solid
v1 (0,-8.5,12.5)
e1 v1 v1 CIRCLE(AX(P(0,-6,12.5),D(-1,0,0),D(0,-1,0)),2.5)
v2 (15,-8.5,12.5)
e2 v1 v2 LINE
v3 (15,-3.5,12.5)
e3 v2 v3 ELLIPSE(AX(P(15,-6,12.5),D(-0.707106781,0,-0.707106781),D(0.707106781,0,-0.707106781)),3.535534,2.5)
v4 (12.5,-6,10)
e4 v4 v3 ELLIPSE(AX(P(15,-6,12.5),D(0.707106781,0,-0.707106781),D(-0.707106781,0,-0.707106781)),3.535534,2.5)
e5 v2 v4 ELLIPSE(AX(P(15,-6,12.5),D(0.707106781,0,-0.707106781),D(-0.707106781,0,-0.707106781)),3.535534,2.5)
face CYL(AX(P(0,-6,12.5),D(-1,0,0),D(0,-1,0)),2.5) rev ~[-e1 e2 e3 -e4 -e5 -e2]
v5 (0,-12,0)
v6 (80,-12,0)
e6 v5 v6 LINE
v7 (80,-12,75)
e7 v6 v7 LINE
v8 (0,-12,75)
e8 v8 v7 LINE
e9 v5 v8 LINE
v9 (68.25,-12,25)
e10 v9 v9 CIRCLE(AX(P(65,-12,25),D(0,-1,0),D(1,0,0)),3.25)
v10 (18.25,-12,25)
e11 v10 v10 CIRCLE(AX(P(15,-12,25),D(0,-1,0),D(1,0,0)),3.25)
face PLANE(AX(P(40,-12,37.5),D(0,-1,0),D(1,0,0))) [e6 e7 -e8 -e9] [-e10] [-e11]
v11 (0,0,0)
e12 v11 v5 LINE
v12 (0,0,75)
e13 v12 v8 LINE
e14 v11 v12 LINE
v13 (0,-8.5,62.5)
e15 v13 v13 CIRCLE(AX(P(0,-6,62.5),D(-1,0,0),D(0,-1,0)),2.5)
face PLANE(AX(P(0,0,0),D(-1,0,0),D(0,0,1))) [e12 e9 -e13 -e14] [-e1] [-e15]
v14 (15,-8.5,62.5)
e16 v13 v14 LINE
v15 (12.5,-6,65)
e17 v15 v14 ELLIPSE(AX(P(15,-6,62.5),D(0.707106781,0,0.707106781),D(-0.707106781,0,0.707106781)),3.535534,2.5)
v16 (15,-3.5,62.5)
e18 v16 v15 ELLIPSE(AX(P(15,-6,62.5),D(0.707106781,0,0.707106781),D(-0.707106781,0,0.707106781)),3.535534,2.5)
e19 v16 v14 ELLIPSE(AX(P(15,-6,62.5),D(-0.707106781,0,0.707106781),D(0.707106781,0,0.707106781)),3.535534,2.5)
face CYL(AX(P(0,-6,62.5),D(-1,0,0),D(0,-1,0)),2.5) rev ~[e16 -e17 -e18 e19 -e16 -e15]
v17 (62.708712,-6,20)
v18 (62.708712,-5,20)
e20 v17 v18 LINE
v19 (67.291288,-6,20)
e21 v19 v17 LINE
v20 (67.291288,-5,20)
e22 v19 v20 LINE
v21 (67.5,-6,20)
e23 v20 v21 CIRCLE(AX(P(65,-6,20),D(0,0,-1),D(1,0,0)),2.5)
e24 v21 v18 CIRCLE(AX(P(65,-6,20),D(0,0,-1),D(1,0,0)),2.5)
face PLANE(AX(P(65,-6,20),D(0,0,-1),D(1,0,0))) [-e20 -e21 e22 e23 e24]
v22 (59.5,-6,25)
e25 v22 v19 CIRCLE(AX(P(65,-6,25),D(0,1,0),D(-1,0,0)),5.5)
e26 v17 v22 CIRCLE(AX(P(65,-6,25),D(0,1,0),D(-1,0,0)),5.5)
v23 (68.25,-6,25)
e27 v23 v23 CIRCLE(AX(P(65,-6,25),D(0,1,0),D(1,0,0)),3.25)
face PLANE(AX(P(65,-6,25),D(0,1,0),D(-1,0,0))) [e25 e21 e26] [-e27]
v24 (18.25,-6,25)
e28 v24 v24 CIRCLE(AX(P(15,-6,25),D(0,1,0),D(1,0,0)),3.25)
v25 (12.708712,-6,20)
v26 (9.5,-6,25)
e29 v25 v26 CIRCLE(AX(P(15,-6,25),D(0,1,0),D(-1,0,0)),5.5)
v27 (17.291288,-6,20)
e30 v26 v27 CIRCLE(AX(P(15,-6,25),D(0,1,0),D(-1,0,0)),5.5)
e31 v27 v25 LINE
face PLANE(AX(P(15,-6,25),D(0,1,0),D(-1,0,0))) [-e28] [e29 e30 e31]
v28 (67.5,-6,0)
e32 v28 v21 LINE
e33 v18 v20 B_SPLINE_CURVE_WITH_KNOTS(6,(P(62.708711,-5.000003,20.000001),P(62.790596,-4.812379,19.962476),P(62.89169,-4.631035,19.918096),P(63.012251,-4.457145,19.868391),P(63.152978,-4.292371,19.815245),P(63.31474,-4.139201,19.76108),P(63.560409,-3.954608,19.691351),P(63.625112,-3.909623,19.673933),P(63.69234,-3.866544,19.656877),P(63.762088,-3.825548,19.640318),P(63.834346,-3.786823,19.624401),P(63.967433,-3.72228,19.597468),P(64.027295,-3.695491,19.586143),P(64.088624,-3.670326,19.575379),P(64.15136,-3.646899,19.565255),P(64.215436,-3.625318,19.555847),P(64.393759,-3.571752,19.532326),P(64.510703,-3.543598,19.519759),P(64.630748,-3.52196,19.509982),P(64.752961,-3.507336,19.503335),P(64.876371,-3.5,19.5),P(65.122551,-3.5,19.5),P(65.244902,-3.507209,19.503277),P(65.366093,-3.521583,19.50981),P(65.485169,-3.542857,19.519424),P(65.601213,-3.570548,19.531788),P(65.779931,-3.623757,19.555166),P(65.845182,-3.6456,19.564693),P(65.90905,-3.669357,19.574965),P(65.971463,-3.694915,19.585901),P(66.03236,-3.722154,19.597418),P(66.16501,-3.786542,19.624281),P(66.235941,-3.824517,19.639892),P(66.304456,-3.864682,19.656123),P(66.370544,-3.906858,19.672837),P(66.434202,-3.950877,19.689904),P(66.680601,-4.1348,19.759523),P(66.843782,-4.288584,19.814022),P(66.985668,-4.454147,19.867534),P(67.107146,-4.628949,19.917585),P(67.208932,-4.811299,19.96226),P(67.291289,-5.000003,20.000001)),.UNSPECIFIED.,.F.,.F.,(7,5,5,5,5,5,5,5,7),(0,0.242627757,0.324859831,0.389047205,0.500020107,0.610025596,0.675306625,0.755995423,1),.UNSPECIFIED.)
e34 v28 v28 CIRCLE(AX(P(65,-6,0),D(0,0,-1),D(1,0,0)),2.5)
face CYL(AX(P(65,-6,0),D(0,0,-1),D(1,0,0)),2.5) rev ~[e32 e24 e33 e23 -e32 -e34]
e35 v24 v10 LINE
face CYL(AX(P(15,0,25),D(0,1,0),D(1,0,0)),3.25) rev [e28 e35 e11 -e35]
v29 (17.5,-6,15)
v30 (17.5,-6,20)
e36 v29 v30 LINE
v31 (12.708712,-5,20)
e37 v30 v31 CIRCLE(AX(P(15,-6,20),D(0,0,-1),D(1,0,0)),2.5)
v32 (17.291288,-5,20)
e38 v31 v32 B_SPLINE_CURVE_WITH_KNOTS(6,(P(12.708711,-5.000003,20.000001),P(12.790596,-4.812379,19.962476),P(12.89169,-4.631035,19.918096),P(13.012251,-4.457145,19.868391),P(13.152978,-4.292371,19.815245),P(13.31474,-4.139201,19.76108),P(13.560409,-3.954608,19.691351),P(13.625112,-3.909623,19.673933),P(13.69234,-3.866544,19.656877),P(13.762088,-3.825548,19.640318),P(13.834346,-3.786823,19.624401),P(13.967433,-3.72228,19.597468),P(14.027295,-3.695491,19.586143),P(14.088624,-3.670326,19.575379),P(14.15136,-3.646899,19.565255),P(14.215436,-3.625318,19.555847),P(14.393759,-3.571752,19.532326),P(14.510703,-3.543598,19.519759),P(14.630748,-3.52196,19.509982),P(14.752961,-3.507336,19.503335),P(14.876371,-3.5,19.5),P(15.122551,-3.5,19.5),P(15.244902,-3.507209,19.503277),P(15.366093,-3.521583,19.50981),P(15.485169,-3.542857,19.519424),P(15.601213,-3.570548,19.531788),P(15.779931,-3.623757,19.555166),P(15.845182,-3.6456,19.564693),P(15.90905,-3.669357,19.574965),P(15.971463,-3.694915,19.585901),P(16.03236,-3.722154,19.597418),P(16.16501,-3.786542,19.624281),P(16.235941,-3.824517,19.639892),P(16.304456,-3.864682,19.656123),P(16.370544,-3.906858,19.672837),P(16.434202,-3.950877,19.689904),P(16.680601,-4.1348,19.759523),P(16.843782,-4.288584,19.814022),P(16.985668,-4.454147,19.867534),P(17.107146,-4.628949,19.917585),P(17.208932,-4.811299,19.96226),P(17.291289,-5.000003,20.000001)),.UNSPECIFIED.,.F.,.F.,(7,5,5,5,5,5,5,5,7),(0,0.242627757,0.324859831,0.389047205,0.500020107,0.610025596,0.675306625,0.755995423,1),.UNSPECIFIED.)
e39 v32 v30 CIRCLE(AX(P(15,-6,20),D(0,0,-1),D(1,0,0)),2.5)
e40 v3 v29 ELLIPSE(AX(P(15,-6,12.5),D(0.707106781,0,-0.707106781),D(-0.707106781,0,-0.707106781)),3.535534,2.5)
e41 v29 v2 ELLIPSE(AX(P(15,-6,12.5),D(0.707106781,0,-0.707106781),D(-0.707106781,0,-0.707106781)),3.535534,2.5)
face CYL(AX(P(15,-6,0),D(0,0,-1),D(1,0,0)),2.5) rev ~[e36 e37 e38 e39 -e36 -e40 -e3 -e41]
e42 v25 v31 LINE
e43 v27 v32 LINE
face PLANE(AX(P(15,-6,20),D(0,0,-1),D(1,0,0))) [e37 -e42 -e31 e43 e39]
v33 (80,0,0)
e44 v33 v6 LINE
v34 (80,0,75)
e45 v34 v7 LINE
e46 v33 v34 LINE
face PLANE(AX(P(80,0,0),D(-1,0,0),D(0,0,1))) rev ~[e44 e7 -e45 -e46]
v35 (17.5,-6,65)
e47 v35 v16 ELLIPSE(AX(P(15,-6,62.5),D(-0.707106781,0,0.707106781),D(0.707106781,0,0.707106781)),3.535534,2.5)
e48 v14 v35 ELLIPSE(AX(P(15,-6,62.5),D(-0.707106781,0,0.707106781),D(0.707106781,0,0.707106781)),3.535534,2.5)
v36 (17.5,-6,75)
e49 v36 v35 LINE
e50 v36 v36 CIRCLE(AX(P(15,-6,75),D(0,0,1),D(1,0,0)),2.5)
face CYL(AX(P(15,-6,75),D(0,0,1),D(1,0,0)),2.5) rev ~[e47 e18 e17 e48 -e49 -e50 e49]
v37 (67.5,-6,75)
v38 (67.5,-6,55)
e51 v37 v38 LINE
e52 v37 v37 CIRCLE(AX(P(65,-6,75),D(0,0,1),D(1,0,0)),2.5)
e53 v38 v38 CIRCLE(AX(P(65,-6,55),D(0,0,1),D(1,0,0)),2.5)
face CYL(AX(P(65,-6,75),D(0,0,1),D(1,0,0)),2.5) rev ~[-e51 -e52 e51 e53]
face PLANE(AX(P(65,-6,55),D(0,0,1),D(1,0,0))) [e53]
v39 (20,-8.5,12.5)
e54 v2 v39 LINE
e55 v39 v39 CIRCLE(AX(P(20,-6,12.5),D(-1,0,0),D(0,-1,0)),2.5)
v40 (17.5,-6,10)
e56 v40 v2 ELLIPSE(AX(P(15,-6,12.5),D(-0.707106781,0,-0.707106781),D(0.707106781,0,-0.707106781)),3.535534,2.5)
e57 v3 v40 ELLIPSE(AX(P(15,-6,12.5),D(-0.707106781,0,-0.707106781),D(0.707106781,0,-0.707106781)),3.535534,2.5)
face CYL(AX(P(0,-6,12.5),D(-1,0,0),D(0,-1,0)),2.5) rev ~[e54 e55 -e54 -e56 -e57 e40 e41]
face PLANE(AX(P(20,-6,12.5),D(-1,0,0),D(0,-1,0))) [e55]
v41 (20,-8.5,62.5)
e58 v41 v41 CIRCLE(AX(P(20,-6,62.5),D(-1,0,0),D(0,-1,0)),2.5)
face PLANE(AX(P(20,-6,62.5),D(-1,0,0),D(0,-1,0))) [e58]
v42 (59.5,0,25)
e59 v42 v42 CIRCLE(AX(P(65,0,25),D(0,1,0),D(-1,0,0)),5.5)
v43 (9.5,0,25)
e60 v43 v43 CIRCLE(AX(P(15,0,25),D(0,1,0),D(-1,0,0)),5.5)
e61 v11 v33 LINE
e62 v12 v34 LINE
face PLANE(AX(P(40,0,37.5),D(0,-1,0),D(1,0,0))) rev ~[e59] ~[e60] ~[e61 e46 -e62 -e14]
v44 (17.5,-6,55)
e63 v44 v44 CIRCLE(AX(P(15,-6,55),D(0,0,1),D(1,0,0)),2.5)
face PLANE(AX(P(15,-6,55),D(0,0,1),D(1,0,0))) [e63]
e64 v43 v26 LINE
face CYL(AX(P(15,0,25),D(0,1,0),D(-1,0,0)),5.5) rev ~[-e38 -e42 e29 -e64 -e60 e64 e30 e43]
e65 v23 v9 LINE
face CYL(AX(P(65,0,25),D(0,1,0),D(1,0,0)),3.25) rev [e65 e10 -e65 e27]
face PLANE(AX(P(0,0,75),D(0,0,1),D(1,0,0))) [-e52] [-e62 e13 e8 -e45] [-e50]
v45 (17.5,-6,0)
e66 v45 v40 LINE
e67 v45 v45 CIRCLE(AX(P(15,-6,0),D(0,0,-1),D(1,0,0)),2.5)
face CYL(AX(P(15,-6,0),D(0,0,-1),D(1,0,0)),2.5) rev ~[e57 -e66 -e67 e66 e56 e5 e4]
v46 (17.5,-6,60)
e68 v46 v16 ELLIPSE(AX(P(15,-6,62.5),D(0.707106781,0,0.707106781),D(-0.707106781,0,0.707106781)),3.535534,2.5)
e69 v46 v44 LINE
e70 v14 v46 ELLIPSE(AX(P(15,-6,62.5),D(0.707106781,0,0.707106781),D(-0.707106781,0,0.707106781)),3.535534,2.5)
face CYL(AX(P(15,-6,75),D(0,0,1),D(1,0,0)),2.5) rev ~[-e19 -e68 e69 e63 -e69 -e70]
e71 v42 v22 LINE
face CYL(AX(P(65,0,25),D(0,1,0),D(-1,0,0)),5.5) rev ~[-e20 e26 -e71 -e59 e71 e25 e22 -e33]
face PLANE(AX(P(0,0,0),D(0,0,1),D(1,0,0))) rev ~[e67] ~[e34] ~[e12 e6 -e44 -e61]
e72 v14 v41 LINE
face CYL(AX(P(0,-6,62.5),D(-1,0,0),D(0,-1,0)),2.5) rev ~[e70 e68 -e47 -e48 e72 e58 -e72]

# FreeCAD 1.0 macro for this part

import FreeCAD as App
import Part
import Sketcher

V = App.Vector
Q = App.Units.Quantity

doc = App.newDocument("Part")
body = doc.addObject("PartDesign::Body", "Body")

sketch1 = body.newObject("Sketcher::SketchObject", "Sketch")
sketch1.AttachmentSupport = (doc.getObject("XZ_Plane"), [""])
sketch1.MapMode = "FlatFace"
sketch1.addGeometry([
    Part.LineSegment(V(0, 75, 0), V(0, 0, 0)),
    Part.LineSegment(V(0, 0, 0), V(80, 0, 0)),
    Part.LineSegment(V(80, 0, 0), V(80, 75, 0)),
    Part.LineSegment(V(80, 75, 0), V(0, 75, 0)),
    Part.Circle(V(15, 25, 0), V(0, 0, 1), 3.25),
    Part.Circle(V(65, 25, 0), V(0, 0, 1), 3.25),
], False)
sketch1.addConstraint([
    Sketcher.Constraint("Coincident", 0, 2, 1, 1),
    Sketcher.Constraint("Coincident", 1, 2, 2, 1),
    Sketcher.Constraint("Coincident", 2, 2, 3, 1),
    Sketcher.Constraint("Coincident", 3, 2, 0, 1),
    Sketcher.Constraint("Vertical", 0),
    Sketcher.Constraint("Horizontal", 1),
    Sketcher.Constraint("Vertical", 2),
    Sketcher.Constraint("Horizontal", 3),
    Sketcher.Constraint("Coincident", 0, 2, -1, 1),
    Sketcher.Constraint("Equal", 4, 5),
    Sketcher.Constraint("Horizontal", 4, 3, 5, 3),
    Sketcher.Constraint("Diameter", 4, Q("6.5 mm")),
    Sketcher.Constraint("DistanceX", 1, 1, 1, 2, Q("80 mm")),
    Sketcher.Constraint("DistanceY", 0, 2, 0, 1, Q("75 mm")),
    Sketcher.Constraint("DistanceX", -1, 1, 4, 3, Q("15 mm")),
    Sketcher.Constraint("DistanceY", -1, 1, 4, 3, Q("25 mm")),
    Sketcher.Constraint("DistanceX", -1, 1, 5, 3, Q("65 mm")),
])
pad1 = body.newObject("PartDesign::Pad", "Pad")
pad1.Profile = sketch1
pad1.Length = 12

sketch2 = body.newObject("Sketcher::SketchObject", "Sketch001")
sketch2.AttachmentSupport = (doc.getObject("XZ_Plane"), [""])
sketch2.MapMode = "FlatFace"
sketch2.addGeometry([
    Part.Circle(V(15, 25, 0), V(0, 0, 1), 5.5),
    Part.Circle(V(65, 25, 0), V(0, 0, 1), 5.5),
], False)
sketch2.addConstraint([
    Sketcher.Constraint("Equal", 0, 1),
    Sketcher.Constraint("Horizontal", 0, 3, 1, 3),
    Sketcher.Constraint("Diameter", 0, Q("11 mm")),
    Sketcher.Constraint("DistanceX", -1, 1, 0, 3, Q("15 mm")),
    Sketcher.Constraint("DistanceY", -1, 1, 0, 3, Q("25 mm")),
    Sketcher.Constraint("DistanceX", -1, 1, 1, 3, Q("65 mm")),
])
pocket1 = body.newObject("PartDesign::Pocket", "Pocket")
pocket1.Profile = sketch2
pocket1.Length = 6
pocket1.Reversed = True

sketch3 = body.newObject("Sketcher::SketchObject", "Sketch002")
sketch3.AttachmentSupport = (doc.getObject("XY_Plane"), [""])
sketch3.MapMode = "FlatFace"
sketch3.addGeometry([
    Part.Circle(V(15, -6, 0), V(0, 0, 1), 2.5),
    Part.Circle(V(65, -6, 0), V(0, 0, 1), 2.5),
], False)
sketch3.addConstraint([
    Sketcher.Constraint("Equal", 0, 1),
    Sketcher.Constraint("Horizontal", 0, 3, 1, 3),
    Sketcher.Constraint("Diameter", 0, Q("5 mm")),
    Sketcher.Constraint("DistanceX", -1, 1, 0, 3, Q("15 mm")),
    Sketcher.Constraint("DistanceY", 0, 3, -1, 1, Q("6 mm")),
    Sketcher.Constraint("DistanceX", -1, 1, 1, 3, Q("65 mm")),
])
pocket2 = body.newObject("PartDesign::Pocket", "Pocket001")
pocket2.Profile = sketch3
pocket2.Length = 20
pocket2.Reversed = True

sketch4 = body.newObject("Sketcher::SketchObject", "Sketch003")
sketch4.AttachmentSupport = (doc.getObject("XY_Plane"), [""])
sketch4.MapMode = "FlatFace"
sketch4.AttachmentOffset = App.Placement(V(0, 0, 75), App.Rotation())
sketch4.addGeometry([
    Part.Circle(V(15, -6, 0), V(0, 0, 1), 2.5),
    Part.Circle(V(65, -6, 0), V(0, 0, 1), 2.5),
], False)
sketch4.addConstraint([
    Sketcher.Constraint("Equal", 0, 1),
    Sketcher.Constraint("Horizontal", 0, 3, 1, 3),
    Sketcher.Constraint("Diameter", 0, Q("5 mm")),
    Sketcher.Constraint("DistanceX", -1, 1, 0, 3, Q("15 mm")),
    Sketcher.Constraint("DistanceY", 0, 3, -1, 1, Q("6 mm")),
    Sketcher.Constraint("DistanceX", -1, 1, 1, 3, Q("65 mm")),
])
pocket3 = body.newObject("PartDesign::Pocket", "Pocket002")
pocket3.Profile = sketch4
pocket3.Length = 20

sketch5 = body.newObject("Sketcher::SketchObject", "Sketch004")
sketch5.AttachmentSupport = (doc.getObject("YZ_Plane"), [""])
sketch5.MapMode = "FlatFace"
sketch5.addGeometry([
    Part.Circle(V(-6, 62.5, 0), V(0, 0, 1), 2.5),
    Part.Circle(V(-6, 12.5, 0), V(0, 0, 1), 2.5),
], False)
sketch5.addConstraint([
    Sketcher.Constraint("Equal", 0, 1),
    Sketcher.Constraint("Vertical", 0, 3, 1, 3),
    Sketcher.Constraint("Diameter", 0, Q("5 mm")),
    Sketcher.Constraint("DistanceX", 0, 3, -1, 1, Q("6 mm")),
    Sketcher.Constraint("DistanceY", 1, 3, 0, 3, Q("50 mm")),
    Sketcher.Constraint("DistanceY", -1, 1, 0, 3, Q("62.5 mm")),
])
pocket4 = body.newObject("PartDesign::Pocket", "Pocket003")
pocket4.Profile = sketch5
pocket4.Length = 20
pocket4.Reversed = True

doc.recompute()
